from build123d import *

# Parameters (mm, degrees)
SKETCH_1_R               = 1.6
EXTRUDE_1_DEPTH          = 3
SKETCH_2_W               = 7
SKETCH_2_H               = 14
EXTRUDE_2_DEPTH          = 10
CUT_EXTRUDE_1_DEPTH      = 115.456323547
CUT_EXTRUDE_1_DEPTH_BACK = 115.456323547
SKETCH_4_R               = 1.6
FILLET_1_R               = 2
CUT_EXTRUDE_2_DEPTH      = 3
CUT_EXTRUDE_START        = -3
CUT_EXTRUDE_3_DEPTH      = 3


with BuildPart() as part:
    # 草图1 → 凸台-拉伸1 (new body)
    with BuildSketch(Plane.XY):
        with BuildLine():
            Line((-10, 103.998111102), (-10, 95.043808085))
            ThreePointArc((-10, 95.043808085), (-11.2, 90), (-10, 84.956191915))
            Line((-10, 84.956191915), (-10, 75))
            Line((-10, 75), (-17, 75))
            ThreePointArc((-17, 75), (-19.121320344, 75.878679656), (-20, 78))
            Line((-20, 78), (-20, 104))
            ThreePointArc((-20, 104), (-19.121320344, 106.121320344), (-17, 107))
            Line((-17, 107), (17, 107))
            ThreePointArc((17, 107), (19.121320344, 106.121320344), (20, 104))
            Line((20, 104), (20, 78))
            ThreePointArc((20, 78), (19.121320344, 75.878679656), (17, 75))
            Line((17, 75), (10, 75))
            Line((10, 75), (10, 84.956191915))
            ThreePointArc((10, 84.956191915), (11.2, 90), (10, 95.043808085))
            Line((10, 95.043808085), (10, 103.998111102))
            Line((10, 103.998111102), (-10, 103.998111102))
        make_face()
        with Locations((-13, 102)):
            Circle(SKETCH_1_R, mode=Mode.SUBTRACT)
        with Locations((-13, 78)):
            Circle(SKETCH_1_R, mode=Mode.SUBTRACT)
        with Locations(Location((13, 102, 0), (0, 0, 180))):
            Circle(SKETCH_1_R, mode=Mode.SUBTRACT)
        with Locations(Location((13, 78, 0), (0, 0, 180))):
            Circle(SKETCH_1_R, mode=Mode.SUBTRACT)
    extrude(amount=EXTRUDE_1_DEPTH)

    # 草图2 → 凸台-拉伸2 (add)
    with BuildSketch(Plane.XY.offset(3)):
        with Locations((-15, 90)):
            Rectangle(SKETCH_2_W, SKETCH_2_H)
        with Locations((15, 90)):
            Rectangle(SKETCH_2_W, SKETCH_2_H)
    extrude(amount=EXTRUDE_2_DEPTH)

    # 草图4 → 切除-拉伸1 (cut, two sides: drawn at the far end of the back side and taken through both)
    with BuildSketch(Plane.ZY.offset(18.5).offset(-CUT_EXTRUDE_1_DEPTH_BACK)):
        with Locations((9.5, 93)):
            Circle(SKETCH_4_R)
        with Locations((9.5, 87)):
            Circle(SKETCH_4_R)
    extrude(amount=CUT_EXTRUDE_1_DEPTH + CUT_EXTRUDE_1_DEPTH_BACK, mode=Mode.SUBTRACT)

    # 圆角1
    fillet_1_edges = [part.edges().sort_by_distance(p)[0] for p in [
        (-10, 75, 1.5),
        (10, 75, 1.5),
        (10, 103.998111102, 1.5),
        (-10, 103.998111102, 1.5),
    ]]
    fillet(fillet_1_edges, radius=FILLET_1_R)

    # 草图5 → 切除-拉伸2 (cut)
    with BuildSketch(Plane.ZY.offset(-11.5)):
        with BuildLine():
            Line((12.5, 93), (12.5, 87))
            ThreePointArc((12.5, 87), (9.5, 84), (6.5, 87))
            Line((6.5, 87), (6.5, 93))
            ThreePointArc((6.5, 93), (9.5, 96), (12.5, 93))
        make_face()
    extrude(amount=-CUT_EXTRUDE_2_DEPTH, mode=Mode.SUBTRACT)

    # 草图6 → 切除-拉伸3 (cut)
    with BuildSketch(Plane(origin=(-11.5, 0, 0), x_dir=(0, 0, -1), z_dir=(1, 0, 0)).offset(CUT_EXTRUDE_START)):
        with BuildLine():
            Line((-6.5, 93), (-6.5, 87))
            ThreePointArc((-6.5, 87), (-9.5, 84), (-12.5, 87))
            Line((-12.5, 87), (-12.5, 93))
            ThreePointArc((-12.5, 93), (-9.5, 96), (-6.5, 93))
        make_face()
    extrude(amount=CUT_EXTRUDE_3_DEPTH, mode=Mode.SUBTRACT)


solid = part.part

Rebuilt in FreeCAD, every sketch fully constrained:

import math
import FreeCAD as App
import Part
import Sketcher
Q = App.Units.Quantity


def edges_at(feature, points):
    """Names of the edges that pass closest to the given points."""
    edges = feature.Shape.Edges
    near = lambda p: min(range(len(edges)), key=lambda i: edges[i].distToShape(Part.Vertex(*p))[0])
    return sorted({f"Edge{near(p) + 1}" for p in points})

doc = App.newDocument("Part")
body = doc.addObject("PartDesign::Body", "Body")

# Sketch on XY plane
sketch1 = doc.addObject("Sketcher::SketchObject", "Sketch")
body.addObject(sketch1)
sketch1.AttachmentSupport = (doc.XY_Plane, [""])
sketch1.MapMode = "FlatFace"
sketch1.addGeometry([
    Part.LineSegment(App.Vector(-10, 95, 0), App.Vector(-10, 104, 0)),  # 0
    Part.LineSegment(App.Vector(-10, 104, 0), App.Vector(10, 104, 0)),  # 1
    Part.LineSegment(App.Vector(10, 104, 0), App.Vector(10, 95, 0)),  # 2
    Part.ArcOfCircle(Part.Circle(App.Vector(0, 90, 0), App.Vector(0, 0, 1), 11.2), math.radians(-27), math.radians(27)),  # 3
    Part.LineSegment(App.Vector(10, 85, 0), App.Vector(10, 75, 0)),  # 4
    Part.LineSegment(App.Vector(10, 75, 0), App.Vector(17, 75, 0)),  # 5
    Part.ArcOfCircle(Part.Circle(App.Vector(17, 78, 0), App.Vector(0, 0, 1), 3), math.radians(-90), math.radians(0)),  # 6
    Part.LineSegment(App.Vector(20, 78, 0), App.Vector(20, 104, 0)),  # 7
    Part.ArcOfCircle(Part.Circle(App.Vector(17, 104, 0), App.Vector(0, 0, 1), 3), math.radians(0), math.radians(90)),  # 8
    Part.LineSegment(App.Vector(17, 107, 0), App.Vector(-17, 107, 0)),  # 9
    Part.ArcOfCircle(Part.Circle(App.Vector(-17, 104, 0), App.Vector(0, 0, 1), 3), math.radians(90), math.radians(180)),  # 10
    Part.LineSegment(App.Vector(-20, 104, 0), App.Vector(-20, 78, 0)),  # 11
    Part.ArcOfCircle(Part.Circle(App.Vector(-17, 78, 0), App.Vector(0, 0, 1), 3), math.radians(180), math.radians(270)),  # 12
    Part.LineSegment(App.Vector(-17, 75, 0), App.Vector(-10, 75, 0)),  # 13
    Part.LineSegment(App.Vector(-10, 75, 0), App.Vector(-10, 85, 0)),  # 14
    Part.ArcOfCircle(Part.Circle(App.Vector(0, 90, 0), App.Vector(0, 0, 1), 11.2), math.radians(153), math.radians(207)),  # 15
    Part.Circle(App.Vector(13, 78, 0), App.Vector(0, 0, 1), 1.6),  # 16
    Part.Circle(App.Vector(-13, 78, 0), App.Vector(0, 0, 1), 1.6),  # 17
    Part.Circle(App.Vector(13, 102, 0), App.Vector(0, 0, 1), 1.6),  # 18
    Part.Circle(App.Vector(-13, 102, 0), App.Vector(0, 0, 1), 1.6),  # 19
], False)
sketch1.addConstraint([
    Sketcher.Constraint("Coincident", 0, 2, 1, 1),
    Sketcher.Constraint("Coincident", 1, 2, 2, 1),
    Sketcher.Constraint("Coincident", 2, 2, 3, 2),
    Sketcher.Constraint("Coincident", 3, 1, 4, 1),
    Sketcher.Constraint("Coincident", 4, 2, 5, 1),
    Sketcher.Constraint("Tangent", 5, 2, 6, 1),
    Sketcher.Constraint("Tangent", 6, 2, 7, 1),
    Sketcher.Constraint("Tangent", 7, 2, 8, 1),
    Sketcher.Constraint("Tangent", 8, 2, 9, 1),
    Sketcher.Constraint("Tangent", 9, 2, 10, 1),
    Sketcher.Constraint("Tangent", 10, 2, 11, 1),
    Sketcher.Constraint("Tangent", 11, 2, 12, 1),
    Sketcher.Constraint("Tangent", 12, 2, 13, 1),
    Sketcher.Constraint("Coincident", 13, 2, 14, 1),
    Sketcher.Constraint("Coincident", 14, 2, 15, 2),
    Sketcher.Constraint("Coincident", 15, 1, 0, 1),
    Sketcher.Constraint("Vertical", 0),
    Sketcher.Constraint("Horizontal", 1),
    Sketcher.Constraint("Vertical", 2),
    Sketcher.Constraint("Vertical", 4),
    Sketcher.Constraint("Horizontal", 5),
    Sketcher.Constraint("Vertical", 7),
    Sketcher.Constraint("Horizontal", 9),
    Sketcher.Constraint("Vertical", 11),
    Sketcher.Constraint("Horizontal", 13),
    Sketcher.Constraint("Vertical", 14),
    Sketcher.Constraint("Coincident", 15, 3, 3, 3),
    Sketcher.Constraint("Equal", 6, 8),
    Sketcher.Constraint("Equal", 8, 10),
    Sketcher.Constraint("Equal", 10, 12),
    Sketcher.Constraint("Equal", 3, 15),
    Sketcher.Constraint("Equal", 16, 17),
    Sketcher.Constraint("Equal", 17, 18),
    Sketcher.Constraint("Equal", 18, 19),
    Sketcher.Constraint("Symmetric", 6, 3, 12, 3, -2),
    Sketcher.Constraint("Symmetric", 16, 3, 17, 3, -2),
    Sketcher.Constraint("Symmetric", 18, 3, 19, 3, -2),
    Sketcher.Constraint("Symmetric", 3, 1, 14, 2, -2),
    Sketcher.Constraint("Horizontal", 12, 3, 16, 3),
    Sketcher.Constraint("Horizontal", 2, 2, 15, 1),
    Sketcher.Constraint("Vertical", 16, 3, 18, 3),
    Sketcher.Constraint("Vertical", 2, 2, 3, 1),
    Sketcher.Constraint("Radius", 6, Q("3 mm")),
    Sketcher.Constraint("Diameter", 16, Q("3.2 mm")),
    Sketcher.Constraint("Radius", 3, Q("11.2 mm")),
    Sketcher.Constraint("DistanceX", 1, 1, 1, 2, Q("20 mm")),
    Sketcher.Constraint("DistanceX", 5, 1, 5, 2, Q("7 mm")),
    Sketcher.Constraint("DistanceY", 7, 1, 7, 2, Q("26 mm")),
    Sketcher.Constraint("DistanceY", -1, 1, 3, 3, Q("90 mm")),
    Sketcher.Constraint("DistanceY", -1, 1, 6, 3, Q("78 mm")),
    Sketcher.Constraint("DistanceX", -1, 1, 16, 3, Q("13 mm")),
    Sketcher.Constraint("DistanceY", -1, 1, 18, 3, Q("102 mm")),
    Sketcher.Constraint("DistanceY", 0, 1, 0, 2, Q("8.954303 mm")),
])
pad1 = doc.addObject("PartDesign::Pad", "Pad")
body.addObject(pad1)
pad1.Profile = sketch1
pad1.Length = 3

# Sketch on XY plane
sketch2 = doc.addObject("Sketcher::SketchObject", "Sketch001")
body.addObject(sketch2)
sketch2.AttachmentSupport = (doc.XY_Plane, [""])
sketch2.MapMode = "FlatFace"
sketch2.AttachmentOffset = App.Placement(App.Vector(0, 0, 3), App.Rotation())
sketch2.addGeometry([
    Part.LineSegment(App.Vector(-18, 97, 0), App.Vector(-18, 83, 0)),  # 0
    Part.LineSegment(App.Vector(-18, 83, 0), App.Vector(-12, 83, 0)),  # 1
    Part.LineSegment(App.Vector(-12, 83, 0), App.Vector(-12, 97, 0)),  # 2
    Part.LineSegment(App.Vector(-12, 97, 0), App.Vector(-18, 97, 0)),  # 3
    Part.LineSegment(App.Vector(12, 97, 0), App.Vector(12, 83, 0)),  # 4
    Part.LineSegment(App.Vector(12, 83, 0), App.Vector(18, 83, 0)),  # 5
    Part.LineSegment(App.Vector(18, 83, 0), App.Vector(18, 97, 0)),  # 6
    Part.LineSegment(App.Vector(18, 97, 0), App.Vector(12, 97, 0)),  # 7
], False)
sketch2.addConstraint([
    Sketcher.Constraint("Coincident", 0, 2, 1, 1),
    Sketcher.Constraint("Coincident", 1, 2, 2, 1),
    Sketcher.Constraint("Coincident", 2, 2, 3, 1),
    Sketcher.Constraint("Coincident", 3, 2, 0, 1),
    Sketcher.Constraint("Coincident", 4, 2, 5, 1),
    Sketcher.Constraint("Coincident", 5, 2, 6, 1),
    Sketcher.Constraint("Coincident", 6, 2, 7, 1),
    Sketcher.Constraint("Coincident", 7, 2, 4, 1),
    Sketcher.Constraint("Vertical", 0),
    Sketcher.Constraint("Horizontal", 1),
    Sketcher.Constraint("Vertical", 2),
    Sketcher.Constraint("Horizontal", 3),
    Sketcher.Constraint("Vertical", 4),
    Sketcher.Constraint("Horizontal", 5),
    Sketcher.Constraint("Vertical", 6),
    Sketcher.Constraint("Horizontal", 7),
    Sketcher.Constraint("Symmetric", 1, 2, 4, 2, -2),
    Sketcher.Constraint("Symmetric", 3, 2, 6, 2, -2),
    Sketcher.Constraint("DistanceX", 1, 1, 1, 2, Q("7 mm")),
    Sketcher.Constraint("DistanceY", 0, 2, 0, 1, Q("14 mm")),
    Sketcher.Constraint("DistanceY", -1, 1, 0, 2, Q("83 mm")),
    Sketcher.Constraint("DistanceX", 1, 2, 4, 2, Q("23 mm")),
])
pad2 = doc.addObject("PartDesign::Pad", "Pad001")
body.addObject(pad2)
pad2.Profile = sketch2
pad2.Length = 10

# Sketch on YZ plane
sketch3 = doc.addObject("Sketcher::SketchObject", "Sketch002")
body.addObject(sketch3)
sketch3.AttachmentSupport = (doc.YZ_Plane, [""])
sketch3.MapMode = "FlatFace"
sketch3.AttachmentOffset = App.Placement(App.Vector(0, 0, -18.5), App.Rotation())
sketch3.addGeometry([
    Part.Circle(App.Vector(93, 9.5, 0), App.Vector(0, 0, 1), 1.6),
    Part.Circle(App.Vector(87, 9.5, 0), App.Vector(0, 0, 1), 1.6),
], False)
sketch3.addConstraint([
    Sketcher.Constraint("Equal", 0, 1),
    Sketcher.Constraint("Horizontal", 0, 3, 1, 3),
    Sketcher.Constraint("Diameter", 0, Q("3.2 mm")),
    Sketcher.Constraint("DistanceX", -1, 1, 0, 3, Q("93 mm")),
    Sketcher.Constraint("DistanceX", -1, 1, 1, 3, Q("87 mm")),
    Sketcher.Constraint("DistanceY", -1, 1, 0, 3, Q("9.5 mm")),
])
pocket1 = doc.addObject("PartDesign::Pocket", "Pocket")
body.addObject(pocket1)
pocket1.Profile = sketch3
pocket1.Type = "ThroughAll"
pocket1.Midplane = True
doc.recompute()

fillet = doc.addObject("PartDesign::Fillet", "Fillet")
body.addObject(fillet)
fillet.Base = (pocket1, edges_at(pocket1, [
    (-10, 75, 1.5),
    (10, 75, 1.5),
    (10, 103.998, 1.5),
    (-10, 103.998, 1.5),
]))
fillet.Radius = 2

# Sketch on YZ plane
sketch4 = doc.addObject("Sketcher::SketchObject", "Sketch003")
body.addObject(sketch4)
sketch4.AttachmentSupport = (doc.YZ_Plane, [""])
sketch4.MapMode = "FlatFace"
sketch4.AttachmentOffset = App.Placement(App.Vector(0, 0, 11.5), App.Rotation())
sketch4.addGeometry([
    Part.LineSegment(App.Vector(87, 12.5, 0), App.Vector(93, 12.5, 0)),
    Part.ArcOfCircle(Part.Circle(App.Vector(93, 9.5, 0), App.Vector(0, 0, 1), 3), math.radians(-90), math.radians(90)),
    Part.LineSegment(App.Vector(93, 6.5, 0), App.Vector(87, 6.5, 0)),
    Part.ArcOfCircle(Part.Circle(App.Vector(87, 9.5, 0), App.Vector(0, 0, 1), 3), math.radians(90), math.radians(270)),
], False)
sketch4.addConstraint([
    Sketcher.Constraint("Tangent", 0, 2, 1, 2),
    Sketcher.Constraint("Tangent", 1, 1, 2, 1),
    Sketcher.Constraint("Tangent", 2, 2, 3, 2),
    Sketcher.Constraint("Tangent", 3, 1, 0, 1),
    Sketcher.Constraint("Horizontal", 0),
    Sketcher.Constraint("Horizontal", 2),
    Sketcher.Constraint("Radius", 1, Q("3 mm")),
    Sketcher.Constraint("DistanceX", 0, 1, 0, 2, Q("6 mm")),
    Sketcher.Constraint("DistanceX", -1, 1, 1, 3, Q("93 mm")),
    Sketcher.Constraint("DistanceY", -1, 1, 1, 3, Q("9.5 mm")),
])
pocket2 = doc.addObject("PartDesign::Pocket", "Pocket001")
body.addObject(pocket2)
pocket2.Profile = sketch4
pocket2.Length = 3
pocket2.Reversed = True

# Sketch on YZ plane
sketch5 = doc.addObject("Sketcher::SketchObject", "Sketch004")
body.addObject(sketch5)
sketch5.AttachmentSupport = (doc.YZ_Plane, [""])
sketch5.MapMode = "FlatFace"
sketch5.AttachmentOffset = App.Placement(App.Vector(0, 0, -14.5), App.Rotation())
sketch5.addGeometry([
    Part.LineSegment(App.Vector(87, 6.5, 0), App.Vector(93, 6.5, 0)),
    Part.ArcOfCircle(Part.Circle(App.Vector(93, 9.5, 0), App.Vector(0, 0, 1), 3), math.radians(-90), math.radians(90)),
    Part.LineSegment(App.Vector(93, 12.5, 0), App.Vector(87, 12.5, 0)),
    Part.ArcOfCircle(Part.Circle(App.Vector(87, 9.5, 0), App.Vector(0, 0, 1), 3), math.radians(90), math.radians(270)),
], False)
sketch5.addConstraint([
    Sketcher.Constraint("Tangent", 0, 2, 1, 1),
    Sketcher.Constraint("Tangent", 1, 2, 2, 1),
    Sketcher.Constraint("Tangent", 2, 2, 3, 1),
    Sketcher.Constraint("Tangent", 3, 2, 0, 1),
    Sketcher.Constraint("Horizontal", 0),
    Sketcher.Constraint("Horizontal", 2),
    Sketcher.Constraint("Radius", 1, Q("3 mm")),
    Sketcher.Constraint("DistanceX", 0, 1, 0, 2, Q("6 mm")),
    Sketcher.Constraint("DistanceX", -1, 1, 1, 3, Q("93 mm")),
    Sketcher.Constraint("DistanceY", -1, 1, 1, 3, Q("9.5 mm")),
])
pocket3 = doc.addObject("PartDesign::Pocket", "Pocket002")
body.addObject(pocket3)
pocket3.Profile = sketch5
pocket3.Length = 3
pocket3.Reversed = True

doc.recompute()
